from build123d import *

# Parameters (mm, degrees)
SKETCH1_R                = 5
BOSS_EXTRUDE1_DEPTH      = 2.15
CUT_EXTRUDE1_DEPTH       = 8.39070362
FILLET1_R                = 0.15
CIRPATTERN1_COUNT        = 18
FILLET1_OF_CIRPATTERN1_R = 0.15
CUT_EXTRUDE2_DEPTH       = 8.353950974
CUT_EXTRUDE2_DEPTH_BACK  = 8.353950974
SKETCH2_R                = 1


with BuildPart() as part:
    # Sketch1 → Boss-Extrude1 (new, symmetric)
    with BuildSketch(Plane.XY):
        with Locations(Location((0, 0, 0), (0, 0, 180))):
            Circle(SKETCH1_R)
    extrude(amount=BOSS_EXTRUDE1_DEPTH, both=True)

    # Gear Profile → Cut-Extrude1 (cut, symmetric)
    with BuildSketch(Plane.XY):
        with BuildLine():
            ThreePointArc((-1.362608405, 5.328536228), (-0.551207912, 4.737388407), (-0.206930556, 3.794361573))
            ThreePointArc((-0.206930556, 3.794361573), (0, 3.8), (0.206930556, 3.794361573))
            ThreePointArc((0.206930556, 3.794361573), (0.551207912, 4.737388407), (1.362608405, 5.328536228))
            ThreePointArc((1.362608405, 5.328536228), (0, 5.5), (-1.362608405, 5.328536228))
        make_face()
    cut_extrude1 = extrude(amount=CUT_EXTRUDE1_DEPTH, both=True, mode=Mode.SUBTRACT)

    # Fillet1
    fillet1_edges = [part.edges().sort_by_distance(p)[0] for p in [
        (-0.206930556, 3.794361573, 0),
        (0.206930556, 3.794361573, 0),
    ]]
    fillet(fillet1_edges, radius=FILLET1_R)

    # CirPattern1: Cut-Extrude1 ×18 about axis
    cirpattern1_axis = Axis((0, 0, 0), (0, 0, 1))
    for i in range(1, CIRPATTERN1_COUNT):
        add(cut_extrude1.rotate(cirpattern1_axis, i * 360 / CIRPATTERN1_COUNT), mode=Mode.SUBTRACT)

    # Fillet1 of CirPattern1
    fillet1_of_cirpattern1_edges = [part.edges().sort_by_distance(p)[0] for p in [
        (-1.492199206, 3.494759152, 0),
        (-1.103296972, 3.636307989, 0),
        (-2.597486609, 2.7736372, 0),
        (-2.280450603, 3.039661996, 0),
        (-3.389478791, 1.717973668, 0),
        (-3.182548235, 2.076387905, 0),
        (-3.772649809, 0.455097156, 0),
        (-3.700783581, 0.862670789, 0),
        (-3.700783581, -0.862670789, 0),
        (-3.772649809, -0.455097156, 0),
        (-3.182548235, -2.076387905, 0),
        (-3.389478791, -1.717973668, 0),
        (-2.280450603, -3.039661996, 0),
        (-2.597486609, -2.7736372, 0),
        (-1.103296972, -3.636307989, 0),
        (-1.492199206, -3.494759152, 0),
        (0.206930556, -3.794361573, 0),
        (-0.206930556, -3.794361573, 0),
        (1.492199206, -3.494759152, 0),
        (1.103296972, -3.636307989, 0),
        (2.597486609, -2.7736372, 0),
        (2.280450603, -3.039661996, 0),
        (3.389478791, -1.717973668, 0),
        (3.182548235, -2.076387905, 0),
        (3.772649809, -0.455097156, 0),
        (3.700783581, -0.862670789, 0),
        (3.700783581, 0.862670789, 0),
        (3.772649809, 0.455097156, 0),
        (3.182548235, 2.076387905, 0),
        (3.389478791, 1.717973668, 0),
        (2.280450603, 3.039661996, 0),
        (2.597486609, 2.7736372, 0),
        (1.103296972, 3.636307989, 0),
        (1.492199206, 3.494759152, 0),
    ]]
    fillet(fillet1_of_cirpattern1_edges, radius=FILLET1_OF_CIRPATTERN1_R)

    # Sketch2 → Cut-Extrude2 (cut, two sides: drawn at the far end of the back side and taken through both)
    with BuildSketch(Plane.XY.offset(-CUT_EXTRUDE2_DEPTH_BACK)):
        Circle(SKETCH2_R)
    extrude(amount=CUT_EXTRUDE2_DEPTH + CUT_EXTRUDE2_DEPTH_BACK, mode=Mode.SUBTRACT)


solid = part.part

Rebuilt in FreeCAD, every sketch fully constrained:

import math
import FreeCAD as App
import Part
import Sketcher
from FreeCAD import Vector
Q = App.Units.Quantity


def edges_at(feature, points):
    """Names of the edges that pass closest to the given points."""
    edges = feature.Shape.Edges
    near = lambda p: min(range(len(edges)), key=lambda i: edges[i].distToShape(Part.Vertex(*p))[0])
    return sorted({f"Edge{near(p) + 1}" for p in points})

doc = App.newDocument("Part")
body = doc.addObject("PartDesign::Body", "Body")

sketch1 = body.newObject("Sketcher::SketchObject", "Sketch")
sketch1.AttachmentSupport = (doc.getObject("XY_Plane"), [""])
sketch1.MapMode = "FlatFace"
sketch1.addGeometry(Part.Circle(Vector(0, 0, 0), Vector(0, 0, 1), 5), False)
sketch1.addConstraint(Sketcher.Constraint("Coincident", 0, 3, -1, 1))
sketch1.addConstraint(Sketcher.Constraint("Diameter", 0, Q("10 mm")))
pad1 = body.newObject("PartDesign::Pad", "Pad")
pad1.Profile = sketch1
pad1.Length = 4.3
pad1.Midplane = True

sketch2 = body.newObject("Sketcher::SketchObject", "Sketch001")
sketch2.AttachmentSupport = (doc.getObject("XY_Plane"), [""])
sketch2.MapMode = "FlatFace"
sketch2.addGeometry(Part.ArcOfCircle(Part.Circle(Vector(-1.927663, 3.700519, 0), Vector(0, 0, 1), 1.723289), math.radians(3.121609), math.radians(70.859062)), False)
sketch2.addGeometry(Part.ArcOfCircle(Part.Circle(Vector(0, 0, 0), Vector(0, 0, 1), 3.8), math.radians(86.878391), math.radians(93.121609)), False)
sketch2.addGeometry(Part.ArcOfCircle(Part.Circle(Vector(1.927663, 3.700519, 0), Vector(0, 0, 1), 1.723289), math.radians(109.140938), math.radians(176.878391)), False)
sketch2.addGeometry(Part.ArcOfCircle(Part.Circle(Vector(0, 0, 0), Vector(0, 0, 1), 5.5), math.radians(75.65577), math.radians(104.34423)), False)
sketch2.addConstraint(Sketcher.Constraint("Coincident", 0, 1, 1, 2))
sketch2.addConstraint(Sketcher.Constraint("Coincident", 1, 1, 2, 2))
sketch2.addConstraint(Sketcher.Constraint("Coincident", 2, 1, 3, 1))
sketch2.addConstraint(Sketcher.Constraint("Coincident", 3, 2, 0, 2))
sketch2.addConstraint(Sketcher.Constraint("Coincident", 1, 3, -1, 1))
sketch2.addConstraint(Sketcher.Constraint("Coincident", 3, 3, -1, 1))
sketch2.addConstraint(Sketcher.Constraint("Equal", 0, 2))
sketch2.addConstraint(Sketcher.Constraint("Symmetric", 0, 3, 2, 3, -2))
sketch2.addConstraint(Sketcher.Constraint("Radius", 1, Q("3.8 mm")))
sketch2.addConstraint(Sketcher.Constraint("Radius", 3, Q("5.5 mm")))
sketch2.addConstraint(Sketcher.Constraint("Radius", 0, Q("1.723289 mm")))
sketch2.addConstraint(Sketcher.Constraint("DistanceY", -1, 1, 0, 3, Q("3.700519 mm")))
sketch2.addConstraint(Sketcher.Constraint("DistanceX", 0, 1, -1, 1, Q("0.206931 mm")))
pocket1 = body.newObject("PartDesign::Pocket", "Pocket")
pocket1.Profile = sketch2
pocket1.Length = 16.781407
pocket1.Midplane = True
doc.recompute()

fillet = body.newObject("PartDesign::Fillet", "Fillet")
fillet.Base = (pocket1, edges_at(pocket1, [(-0.207, 3.794, 0), (0.207, 3.794, 0)]))
fillet.Radius = 0.15
doc.recompute()

polarpattern = body.newObject("PartDesign::PolarPattern", "PolarPattern")
polarpattern.Originals = [pocket1]
polarpattern.Axis = (doc.getObject("Z_Axis"), [""])
polarpattern.Angle = 360
polarpattern.Occurrences = 18
body.Tip = polarpattern
doc.recompute()

fillet2 = body.newObject("PartDesign::Fillet", "Fillet001")
fillet2.Base = (polarpattern, edges_at(polarpattern, [
    (-1.492, 3.495, 0),
    (-1.103, 3.636, 0),
    (-2.597, 2.774, 0),
    (-2.28, 3.04, 0),
    (-3.389, 1.718, 0),
    (-3.183, 2.076, 0),
    (-3.773, 0.455, 0),
    (-3.701, 0.863, 0),
    (-3.701, -0.863, 0),
    (-3.773, -0.455, 0),
    (-3.183, -2.076, 0),
    (-3.389, -1.718, 0),
    (-2.28, -3.04, 0),
    (-2.597, -2.774, 0),
    (-1.103, -3.636, 0),
    (-1.492, -3.495, 0),
    (0.207, -3.794, 0),
    (-0.207, -3.794, 0),
    (1.492, -3.495, 0),
    (1.103, -3.636, 0),
    (2.597, -2.774, 0),
    (2.28, -3.04, 0),
    (3.389, -1.718, 0),
    (3.183, -2.076, 0),
    (3.773, -0.455, 0),
    (3.701, -0.863, 0),
    (3.701, 0.863, 0),
    (3.773, 0.455, 0),
    (3.183, 2.076, 0),
    (3.389, 1.718, 0),
    (2.28, 3.04, 0),
    (2.597, 2.774, 0),
    (1.103, 3.636, 0),
    (1.492, 3.495, 0),
]))
fillet2.Radius = 0.15

sketch3 = body.newObject("Sketcher::SketchObject", "Sketch002")
sketch3.AttachmentSupport = (doc.getObject("XY_Plane"), [""])
sketch3.MapMode = "FlatFace"
sketch3.addGeometry(Part.Circle(Vector(0, 0, 0), Vector(0, 0, 1), 1), False)
sketch3.addConstraint(Sketcher.Constraint("Coincident", 0, 3, -1, 1))
sketch3.addConstraint(Sketcher.Constraint("Diameter", 0, Q("2 mm")))
pocket2 = body.newObject("PartDesign::Pocket", "Pocket001")
pocket2.Profile = sketch3
pocket2.Type = "ThroughAll"
pocket2.Midplane = True

doc.recompute()
